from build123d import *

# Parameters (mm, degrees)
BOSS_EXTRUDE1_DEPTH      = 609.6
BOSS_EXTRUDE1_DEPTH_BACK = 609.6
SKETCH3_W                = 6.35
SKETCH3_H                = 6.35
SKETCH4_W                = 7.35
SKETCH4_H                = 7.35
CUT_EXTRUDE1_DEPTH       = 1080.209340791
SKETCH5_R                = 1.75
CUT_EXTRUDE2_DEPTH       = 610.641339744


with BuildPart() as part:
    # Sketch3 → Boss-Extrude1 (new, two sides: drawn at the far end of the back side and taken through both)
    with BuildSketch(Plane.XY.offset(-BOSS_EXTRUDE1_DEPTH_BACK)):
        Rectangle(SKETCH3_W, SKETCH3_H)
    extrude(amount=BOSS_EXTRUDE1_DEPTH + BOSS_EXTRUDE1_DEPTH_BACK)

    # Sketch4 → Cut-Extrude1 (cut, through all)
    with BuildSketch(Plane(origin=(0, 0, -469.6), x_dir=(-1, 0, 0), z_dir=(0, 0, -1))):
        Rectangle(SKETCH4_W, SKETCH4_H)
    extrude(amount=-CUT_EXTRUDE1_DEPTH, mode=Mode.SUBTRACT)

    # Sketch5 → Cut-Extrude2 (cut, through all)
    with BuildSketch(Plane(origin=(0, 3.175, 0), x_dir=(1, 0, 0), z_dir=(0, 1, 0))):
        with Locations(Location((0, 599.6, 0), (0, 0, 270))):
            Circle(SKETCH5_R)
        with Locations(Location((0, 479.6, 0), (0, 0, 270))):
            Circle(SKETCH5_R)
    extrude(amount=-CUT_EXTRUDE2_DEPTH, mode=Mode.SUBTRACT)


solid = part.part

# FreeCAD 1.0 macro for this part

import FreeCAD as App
import Part
import Sketcher
from FreeCAD import Vector
Q = App.Units.Quantity


def add_polygon(sketch, points):
    """Adds a closed chain of lines whose ends are joined by coincident constraints."""
    first, n = sketch.GeometryCount, len(points)
    for a, b in zip(points, points[1:] + points[:1]):
        sketch.addGeometry(Part.LineSegment(App.Vector(*a, 0), App.Vector(*b, 0)), False)
    for i in range(n):
        sketch.addConstraint(Sketcher.Constraint("Coincident", first + i, 2, first + (i + 1) % n, 1))

doc = App.newDocument("Part")
body = doc.addObject("PartDesign::Body", "Body")

# Sketch on XY plane
sketch1 = body.newObject("Sketcher::SketchObject", "Sketch")
sketch1.AttachmentSupport = (doc.getObject("XY_Plane"), [""])
sketch1.MapMode = "FlatFace"
add_polygon(sketch1, [(-3, 3), (-3, -3), (3, -3), (3, 3)])  # lines 0-3
sketch1.addConstraint(Sketcher.Constraint("Vertical", 0))
sketch1.addConstraint(Sketcher.Constraint("Horizontal", 1))
sketch1.addConstraint(Sketcher.Constraint("Vertical", 2))
sketch1.addConstraint(Sketcher.Constraint("Horizontal", 3))
sketch1.addConstraint(Sketcher.Constraint("Symmetric", 0, 2, 2, 2, -1, 1))
sketch1.addConstraint(Sketcher.Constraint("Equal", 3, 0))
sketch1.addConstraint(Sketcher.Constraint("DistanceX", 1, 1, 1, 2, Q("0.25 in")))
pad1 = body.newObject("PartDesign::Pad", "Pad")
pad1.Profile = sketch1
pad1.Type = "TwoLengths"
pad1.Length = Q("24 in")
pad1.Length2 = Q("24 in")

# Sketch on XY plane
sketch2 = body.newObject("Sketcher::SketchObject", "Sketch001")
sketch2.AttachmentSupport = (doc.getObject("XY_Plane"), [""])
sketch2.MapMode = "FlatFace"
sketch2.AttachmentOffset = App.Placement(Vector(0, 0, -469.6), App.Rotation())
add_polygon(sketch2, [(4, 4), (4, -4), (-4, -4), (-4, 4)])  # lines 0-3
sketch2.addConstraint(Sketcher.Constraint("Vertical", 0))
sketch2.addConstraint(Sketcher.Constraint("Horizontal", 1))
sketch2.addConstraint(Sketcher.Constraint("Vertical", 2))
sketch2.addConstraint(Sketcher.Constraint("Horizontal", 3))
sketch2.addConstraint(Sketcher.Constraint("Symmetric", 0, 2, 2, 2, -1, 1))
sketch2.addConstraint(Sketcher.Constraint("Equal", 3, 0))
sketch2.addConstraint(Sketcher.Constraint("DistanceX", 1, 2, 1, 1, Q("7.35 mm")))
pocket1 = body.newObject("PartDesign::Pocket", "Pocket")
pocket1.Profile = sketch2
pocket1.Type = "ThroughAll"
pocket1.Reversed = True

# Sketch on XZ plane
sketch3 = body.newObject("Sketcher::SketchObject", "Sketch002")
sketch3.AttachmentSupport = (doc.getObject("XZ_Plane"), [""])
sketch3.MapMode = "FlatFace"
sketch3.AttachmentOffset = App.Placement(Vector(0, 0, -0.125 * 25.4), App.Rotation())
sketch3.addGeometry(Part.Circle(Vector(0, -599.6, 0), Vector(0, 0, 1), 1.8), False)
sketch3.addGeometry(Part.Circle(Vector(0, -479.6, 0), Vector(0, 0, 1), 1.8), False)
sketch3.addConstraint(Sketcher.Constraint("Equal", 0, 1))
sketch3.addConstraint(Sketcher.Constraint("PointOnObject", 0, 3, -2))
sketch3.addConstraint(Sketcher.Constraint("PointOnObject", 1, 3, -2))
sketch3.addConstraint(Sketcher.Constraint("Diameter", 0, Q("3.5 mm")))
sketch3.addConstraint(Sketcher.Constraint("DistanceY", 0, 3, -1, 1, Q("599.6 mm")))
sketch3.addConstraint(Sketcher.Constraint("DistanceY", 1, 3, -1, 1, Q("479.6 mm")))
pocket2 = body.newObject("PartDesign::Pocket", "Pocket001")
pocket2.Profile = sketch3
pocket2.Type = "ThroughAll"
pocket2.Reversed = True

doc.recompute()
